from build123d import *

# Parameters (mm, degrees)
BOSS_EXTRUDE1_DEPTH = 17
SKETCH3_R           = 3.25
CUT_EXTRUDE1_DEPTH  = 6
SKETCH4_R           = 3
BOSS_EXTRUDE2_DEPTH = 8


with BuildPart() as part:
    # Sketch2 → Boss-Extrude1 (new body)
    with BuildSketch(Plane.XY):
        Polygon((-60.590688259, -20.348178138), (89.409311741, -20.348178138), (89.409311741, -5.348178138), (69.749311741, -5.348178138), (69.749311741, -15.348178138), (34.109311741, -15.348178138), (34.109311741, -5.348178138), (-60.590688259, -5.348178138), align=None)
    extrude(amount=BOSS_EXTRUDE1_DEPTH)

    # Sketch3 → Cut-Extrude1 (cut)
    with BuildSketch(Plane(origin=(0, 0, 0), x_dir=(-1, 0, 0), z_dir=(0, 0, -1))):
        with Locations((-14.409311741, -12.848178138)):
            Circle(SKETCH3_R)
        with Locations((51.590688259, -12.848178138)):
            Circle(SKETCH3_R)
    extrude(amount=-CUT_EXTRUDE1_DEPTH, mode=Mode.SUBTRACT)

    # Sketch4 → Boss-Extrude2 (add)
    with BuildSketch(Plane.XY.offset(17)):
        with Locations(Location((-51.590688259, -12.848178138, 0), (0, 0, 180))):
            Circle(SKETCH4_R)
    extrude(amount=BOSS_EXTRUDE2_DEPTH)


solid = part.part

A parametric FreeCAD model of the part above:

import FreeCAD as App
import Part
import Sketcher
from FreeCAD import Vector

doc = App.newDocument("Part")
body = doc.addObject("PartDesign::Body", "Body")

sketch1 = body.newObject("Sketcher::SketchObject", "Sketch")
sketch1.AttachmentSupport = (doc.getObject("XY_Plane"), [""])
sketch1.MapMode = "FlatFace"
sketch1.addGeometry([
    Part.LineSegment(Vector(-60.590688, -20.348178, 0), Vector(89.409312, -20.348178, 0)),
    Part.LineSegment(Vector(89.409312, -20.348178, 0), Vector(89.409312, -5.348178, 0)),
    Part.LineSegment(Vector(89.409312, -5.348178, 0), Vector(69.749312, -5.348178, 0)),
    Part.LineSegment(Vector(69.749312, -5.348178, 0), Vector(69.749312, -15.348178, 0)),
    Part.LineSegment(Vector(69.749312, -15.348178, 0), Vector(34.109312, -15.348178, 0)),
    Part.LineSegment(Vector(34.109312, -15.348178, 0), Vector(34.109312, -5.348178, 0)),
    Part.LineSegment(Vector(34.109312, -5.348178, 0), Vector(-60.590688, -5.348178, 0)),
    Part.LineSegment(Vector(-60.590688, -5.348178, 0), Vector(-60.590688, -20.348178, 0)),
], False)
sketch1.addConstraint([
    Sketcher.Constraint("Coincident", 0, 2, 1, 1),
    Sketcher.Constraint("Coincident", 1, 2, 2, 1),
    Sketcher.Constraint("Coincident", 2, 2, 3, 1),
    Sketcher.Constraint("Coincident", 3, 2, 4, 1),
    Sketcher.Constraint("Coincident", 4, 2, 5, 1),
    Sketcher.Constraint("Coincident", 5, 2, 6, 1),
    Sketcher.Constraint("Coincident", 6, 2, 7, 1),
    Sketcher.Constraint("Coincident", 7, 2, 0, 1),
    Sketcher.Constraint("Horizontal", 0),
    Sketcher.Constraint("Vertical", 1),
    Sketcher.Constraint("Horizontal", 2),
    Sketcher.Constraint("Vertical", 3),
    Sketcher.Constraint("Horizontal", 4),
    Sketcher.Constraint("Vertical", 5),
    Sketcher.Constraint("Horizontal", 6),
    Sketcher.Constraint("Vertical", 7),
    Sketcher.Constraint("Horizontal", 2, 2, 5, 2),
    Sketcher.Constraint("DistanceX", 0, 1, 0, 2, 150.0),
    Sketcher.Constraint("DistanceY", 1, 1, 1, 2, 15.0),
    Sketcher.Constraint("DistanceY", 3, 2, 3, 1, 10.0),
    Sketcher.Constraint("DistanceX", 6, 2, 6, 1, 94.7),
    Sketcher.Constraint("DistanceX", 2, 2, 2, 1, 19.66),
    Sketcher.Constraint("DistanceX", -1, 1, 0, 2, 89.409312),
    Sketcher.Constraint("DistanceY", 0, 2, -1, 1, 20.348178),
])
pad1 = body.newObject("PartDesign::Pad", "Pad")
pad1.Profile = sketch1
pad1.Length = 17

sketch2 = body.newObject("Sketcher::SketchObject", "Sketch001")
sketch2.AttachmentSupport = (doc.getObject("XY_Plane"), [""])
sketch2.MapMode = "FlatFace"
sketch2.addGeometry([
    Part.Circle(Vector(14.409312, -12.848178, 0), Vector(0, 0, 1), 3.25),
    Part.Circle(Vector(-51.590688, -12.848178, 0), Vector(0, 0, 1), 3.25),
], False)
sketch2.addConstraint([
    Sketcher.Constraint("Equal", 0, 1),
    Sketcher.Constraint("Horizontal", 0, 3, 1, 3),
    Sketcher.Constraint("Diameter", 0, 6.5),
    Sketcher.Constraint("DistanceX", 1, 3, 0, 3, 66.0),
    Sketcher.Constraint("DistanceX", -1, 1, 0, 3, 14.409312),
    Sketcher.Constraint("DistanceY", 0, 3, -1, 1, 12.848178),
])
pocket1 = body.newObject("PartDesign::Pocket", "Pocket")
pocket1.Profile = sketch2
pocket1.Length = 6
pocket1.Reversed = True

sketch3 = body.newObject("Sketcher::SketchObject", "Sketch002")
sketch3.AttachmentSupport = (doc.getObject("XY_Plane"), [""])
sketch3.MapMode = "FlatFace"
sketch3.AttachmentOffset = App.Placement(Vector(0, 0, 17), App.Rotation())
sketch3.addGeometry(Part.Circle(Vector(-51.590688, -12.848178, 0), Vector(0, 0, 1), 3), False)
sketch3.addConstraint([
    Sketcher.Constraint("Diameter", 0, 6.0),
    Sketcher.Constraint("DistanceX", 0, 3, -1, 1, 51.590688),
    Sketcher.Constraint("DistanceY", 0, 3, -1, 1, 12.848178),
])
pad2 = body.newObject("PartDesign::Pad", "Pad001")
pad2.Profile = sketch3
pad2.Length = 8

doc.recompute()
